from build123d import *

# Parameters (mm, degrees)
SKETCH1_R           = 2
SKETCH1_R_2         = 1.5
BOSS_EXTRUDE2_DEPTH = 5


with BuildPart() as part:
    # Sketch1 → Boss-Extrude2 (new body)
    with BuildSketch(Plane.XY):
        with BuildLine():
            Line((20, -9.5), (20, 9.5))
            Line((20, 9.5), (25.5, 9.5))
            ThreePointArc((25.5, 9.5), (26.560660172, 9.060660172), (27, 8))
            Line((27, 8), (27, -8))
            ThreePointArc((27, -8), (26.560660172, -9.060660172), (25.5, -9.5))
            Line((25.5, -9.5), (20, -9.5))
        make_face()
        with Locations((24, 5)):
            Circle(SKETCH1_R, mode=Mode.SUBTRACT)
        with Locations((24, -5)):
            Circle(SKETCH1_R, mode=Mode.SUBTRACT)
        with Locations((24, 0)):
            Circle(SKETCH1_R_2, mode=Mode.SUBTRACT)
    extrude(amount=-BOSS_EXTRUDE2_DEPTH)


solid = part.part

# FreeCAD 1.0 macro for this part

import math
import FreeCAD as App
import Part
import Sketcher
Q = App.Units.Quantity

doc = App.newDocument("Part")
params = doc.addObject("Spreadsheet::Sheet", "Params")
for row, (alias, value) in enumerate([
    ("sketch1_diameter", "4 mm"),
    ("sketch1_diameter2", "3 mm"),
    ("sketch1_height", "19 mm"),
    ("sketch1_width", "5.5 mm"),
    ("pad1_length", "5 mm"),
], start=1):
    params.set(f"A{row}", alias)
    params.set(f"B{row}", "=" + value)
    params.setAlias(f"B{row}", alias)

body = doc.addObject("PartDesign::Body", "Body")

# Sketch on XY plane
sketch1 = body.newObject("Sketcher::SketchObject", "Sketch")
sketch1.AttachmentSupport = (doc.getObject("XY_Plane"), [""])
sketch1.MapMode = "FlatFace"
sketch1.addGeometry([
    Part.LineSegment(App.Vector(20, 9.5, 0), App.Vector(20, -9.5, 0)),  # 0
    Part.LineSegment(App.Vector(20, -9.5, 0), App.Vector(25.5, -9.5, 0)),  # 1
    Part.ArcOfCircle(Part.Circle(App.Vector(25.5, -8, 0), App.Vector(0, 0, 1), 1.5), math.radians(-90), math.radians(0)),  # 2
    Part.LineSegment(App.Vector(27, -8, 0), App.Vector(27, 8, 0)),  # 3
    Part.ArcOfCircle(Part.Circle(App.Vector(25.5, 8, 0), App.Vector(0, 0, 1), 1.5), math.radians(0), math.radians(90)),  # 4
    Part.LineSegment(App.Vector(25.5, 9.5, 0), App.Vector(20, 9.5, 0)),  # 5
    Part.Circle(App.Vector(24, -5, 0), App.Vector(0, 0, 1), 2),  # 6
    Part.Circle(App.Vector(24, 0, 0), App.Vector(0, 0, 1), 1.5),  # 7
    Part.Circle(App.Vector(24, 5, 0), App.Vector(0, 0, 1), 2),  # 8
], False)
sketch1.addConstraint([
    Sketcher.Constraint("Coincident", 0, 2, 1, 1),
    Sketcher.Constraint("Tangent", 1, 2, 2, 1),
    Sketcher.Constraint("Tangent", 2, 2, 3, 1),
    Sketcher.Constraint("Tangent", 3, 2, 4, 1),
    Sketcher.Constraint("Tangent", 4, 2, 5, 1),
    Sketcher.Constraint("Coincident", 5, 2, 0, 1),
    Sketcher.Constraint("Vertical", 0),
    Sketcher.Constraint("Horizontal", 1),
    Sketcher.Constraint("Vertical", 3),
    Sketcher.Constraint("Horizontal", 5),
    Sketcher.Constraint("Equal", 2, 4),
    Sketcher.Constraint("Equal", 4, 7),
    Sketcher.Constraint("Equal", 6, 8),
    Sketcher.Constraint("Symmetric", 6, 3, 8, 3, -1),
    Sketcher.Constraint("PointOnObject", 7, 3, -1),
    Sketcher.Constraint("Vertical", 6, 3, 7, 3),
    Sketcher.Constraint("Diameter", 6, Q("4 mm")),
    Sketcher.Constraint("Diameter", 7, Q("3 mm")),
    Sketcher.Constraint("DistanceY", 0, 2, 0, 1, Q("19 mm")),
    Sketcher.Constraint("DistanceX", 1, 1, 1, 2, Q("5.5 mm")),
    Sketcher.Constraint("DistanceY", 2, 3, -1, 1, Q("8 mm")),
    Sketcher.Constraint("DistanceX", -1, 1, 6, 3, Q("24 mm")),
    Sketcher.Constraint("DistanceY", 6, 3, -1, 1, Q("5 mm")),
    Sketcher.Constraint("DistanceX", -1, 1, 0, 2, Q("20 mm")),
])
sketch1.setExpression("Constraints[16]", "Params.sketch1_diameter")
sketch1.setExpression("Constraints[17]", "Params.sketch1_diameter2")
sketch1.setExpression("Constraints[18]", "Params.sketch1_height")
sketch1.setExpression("Constraints[19]", "Params.sketch1_width")
pad1 = body.newObject("PartDesign::Pad", "Pad")
pad1.Profile = sketch1
pad1.setExpression("Length", "Params.pad1_length")
pad1.Reversed = True

doc.recompute()
